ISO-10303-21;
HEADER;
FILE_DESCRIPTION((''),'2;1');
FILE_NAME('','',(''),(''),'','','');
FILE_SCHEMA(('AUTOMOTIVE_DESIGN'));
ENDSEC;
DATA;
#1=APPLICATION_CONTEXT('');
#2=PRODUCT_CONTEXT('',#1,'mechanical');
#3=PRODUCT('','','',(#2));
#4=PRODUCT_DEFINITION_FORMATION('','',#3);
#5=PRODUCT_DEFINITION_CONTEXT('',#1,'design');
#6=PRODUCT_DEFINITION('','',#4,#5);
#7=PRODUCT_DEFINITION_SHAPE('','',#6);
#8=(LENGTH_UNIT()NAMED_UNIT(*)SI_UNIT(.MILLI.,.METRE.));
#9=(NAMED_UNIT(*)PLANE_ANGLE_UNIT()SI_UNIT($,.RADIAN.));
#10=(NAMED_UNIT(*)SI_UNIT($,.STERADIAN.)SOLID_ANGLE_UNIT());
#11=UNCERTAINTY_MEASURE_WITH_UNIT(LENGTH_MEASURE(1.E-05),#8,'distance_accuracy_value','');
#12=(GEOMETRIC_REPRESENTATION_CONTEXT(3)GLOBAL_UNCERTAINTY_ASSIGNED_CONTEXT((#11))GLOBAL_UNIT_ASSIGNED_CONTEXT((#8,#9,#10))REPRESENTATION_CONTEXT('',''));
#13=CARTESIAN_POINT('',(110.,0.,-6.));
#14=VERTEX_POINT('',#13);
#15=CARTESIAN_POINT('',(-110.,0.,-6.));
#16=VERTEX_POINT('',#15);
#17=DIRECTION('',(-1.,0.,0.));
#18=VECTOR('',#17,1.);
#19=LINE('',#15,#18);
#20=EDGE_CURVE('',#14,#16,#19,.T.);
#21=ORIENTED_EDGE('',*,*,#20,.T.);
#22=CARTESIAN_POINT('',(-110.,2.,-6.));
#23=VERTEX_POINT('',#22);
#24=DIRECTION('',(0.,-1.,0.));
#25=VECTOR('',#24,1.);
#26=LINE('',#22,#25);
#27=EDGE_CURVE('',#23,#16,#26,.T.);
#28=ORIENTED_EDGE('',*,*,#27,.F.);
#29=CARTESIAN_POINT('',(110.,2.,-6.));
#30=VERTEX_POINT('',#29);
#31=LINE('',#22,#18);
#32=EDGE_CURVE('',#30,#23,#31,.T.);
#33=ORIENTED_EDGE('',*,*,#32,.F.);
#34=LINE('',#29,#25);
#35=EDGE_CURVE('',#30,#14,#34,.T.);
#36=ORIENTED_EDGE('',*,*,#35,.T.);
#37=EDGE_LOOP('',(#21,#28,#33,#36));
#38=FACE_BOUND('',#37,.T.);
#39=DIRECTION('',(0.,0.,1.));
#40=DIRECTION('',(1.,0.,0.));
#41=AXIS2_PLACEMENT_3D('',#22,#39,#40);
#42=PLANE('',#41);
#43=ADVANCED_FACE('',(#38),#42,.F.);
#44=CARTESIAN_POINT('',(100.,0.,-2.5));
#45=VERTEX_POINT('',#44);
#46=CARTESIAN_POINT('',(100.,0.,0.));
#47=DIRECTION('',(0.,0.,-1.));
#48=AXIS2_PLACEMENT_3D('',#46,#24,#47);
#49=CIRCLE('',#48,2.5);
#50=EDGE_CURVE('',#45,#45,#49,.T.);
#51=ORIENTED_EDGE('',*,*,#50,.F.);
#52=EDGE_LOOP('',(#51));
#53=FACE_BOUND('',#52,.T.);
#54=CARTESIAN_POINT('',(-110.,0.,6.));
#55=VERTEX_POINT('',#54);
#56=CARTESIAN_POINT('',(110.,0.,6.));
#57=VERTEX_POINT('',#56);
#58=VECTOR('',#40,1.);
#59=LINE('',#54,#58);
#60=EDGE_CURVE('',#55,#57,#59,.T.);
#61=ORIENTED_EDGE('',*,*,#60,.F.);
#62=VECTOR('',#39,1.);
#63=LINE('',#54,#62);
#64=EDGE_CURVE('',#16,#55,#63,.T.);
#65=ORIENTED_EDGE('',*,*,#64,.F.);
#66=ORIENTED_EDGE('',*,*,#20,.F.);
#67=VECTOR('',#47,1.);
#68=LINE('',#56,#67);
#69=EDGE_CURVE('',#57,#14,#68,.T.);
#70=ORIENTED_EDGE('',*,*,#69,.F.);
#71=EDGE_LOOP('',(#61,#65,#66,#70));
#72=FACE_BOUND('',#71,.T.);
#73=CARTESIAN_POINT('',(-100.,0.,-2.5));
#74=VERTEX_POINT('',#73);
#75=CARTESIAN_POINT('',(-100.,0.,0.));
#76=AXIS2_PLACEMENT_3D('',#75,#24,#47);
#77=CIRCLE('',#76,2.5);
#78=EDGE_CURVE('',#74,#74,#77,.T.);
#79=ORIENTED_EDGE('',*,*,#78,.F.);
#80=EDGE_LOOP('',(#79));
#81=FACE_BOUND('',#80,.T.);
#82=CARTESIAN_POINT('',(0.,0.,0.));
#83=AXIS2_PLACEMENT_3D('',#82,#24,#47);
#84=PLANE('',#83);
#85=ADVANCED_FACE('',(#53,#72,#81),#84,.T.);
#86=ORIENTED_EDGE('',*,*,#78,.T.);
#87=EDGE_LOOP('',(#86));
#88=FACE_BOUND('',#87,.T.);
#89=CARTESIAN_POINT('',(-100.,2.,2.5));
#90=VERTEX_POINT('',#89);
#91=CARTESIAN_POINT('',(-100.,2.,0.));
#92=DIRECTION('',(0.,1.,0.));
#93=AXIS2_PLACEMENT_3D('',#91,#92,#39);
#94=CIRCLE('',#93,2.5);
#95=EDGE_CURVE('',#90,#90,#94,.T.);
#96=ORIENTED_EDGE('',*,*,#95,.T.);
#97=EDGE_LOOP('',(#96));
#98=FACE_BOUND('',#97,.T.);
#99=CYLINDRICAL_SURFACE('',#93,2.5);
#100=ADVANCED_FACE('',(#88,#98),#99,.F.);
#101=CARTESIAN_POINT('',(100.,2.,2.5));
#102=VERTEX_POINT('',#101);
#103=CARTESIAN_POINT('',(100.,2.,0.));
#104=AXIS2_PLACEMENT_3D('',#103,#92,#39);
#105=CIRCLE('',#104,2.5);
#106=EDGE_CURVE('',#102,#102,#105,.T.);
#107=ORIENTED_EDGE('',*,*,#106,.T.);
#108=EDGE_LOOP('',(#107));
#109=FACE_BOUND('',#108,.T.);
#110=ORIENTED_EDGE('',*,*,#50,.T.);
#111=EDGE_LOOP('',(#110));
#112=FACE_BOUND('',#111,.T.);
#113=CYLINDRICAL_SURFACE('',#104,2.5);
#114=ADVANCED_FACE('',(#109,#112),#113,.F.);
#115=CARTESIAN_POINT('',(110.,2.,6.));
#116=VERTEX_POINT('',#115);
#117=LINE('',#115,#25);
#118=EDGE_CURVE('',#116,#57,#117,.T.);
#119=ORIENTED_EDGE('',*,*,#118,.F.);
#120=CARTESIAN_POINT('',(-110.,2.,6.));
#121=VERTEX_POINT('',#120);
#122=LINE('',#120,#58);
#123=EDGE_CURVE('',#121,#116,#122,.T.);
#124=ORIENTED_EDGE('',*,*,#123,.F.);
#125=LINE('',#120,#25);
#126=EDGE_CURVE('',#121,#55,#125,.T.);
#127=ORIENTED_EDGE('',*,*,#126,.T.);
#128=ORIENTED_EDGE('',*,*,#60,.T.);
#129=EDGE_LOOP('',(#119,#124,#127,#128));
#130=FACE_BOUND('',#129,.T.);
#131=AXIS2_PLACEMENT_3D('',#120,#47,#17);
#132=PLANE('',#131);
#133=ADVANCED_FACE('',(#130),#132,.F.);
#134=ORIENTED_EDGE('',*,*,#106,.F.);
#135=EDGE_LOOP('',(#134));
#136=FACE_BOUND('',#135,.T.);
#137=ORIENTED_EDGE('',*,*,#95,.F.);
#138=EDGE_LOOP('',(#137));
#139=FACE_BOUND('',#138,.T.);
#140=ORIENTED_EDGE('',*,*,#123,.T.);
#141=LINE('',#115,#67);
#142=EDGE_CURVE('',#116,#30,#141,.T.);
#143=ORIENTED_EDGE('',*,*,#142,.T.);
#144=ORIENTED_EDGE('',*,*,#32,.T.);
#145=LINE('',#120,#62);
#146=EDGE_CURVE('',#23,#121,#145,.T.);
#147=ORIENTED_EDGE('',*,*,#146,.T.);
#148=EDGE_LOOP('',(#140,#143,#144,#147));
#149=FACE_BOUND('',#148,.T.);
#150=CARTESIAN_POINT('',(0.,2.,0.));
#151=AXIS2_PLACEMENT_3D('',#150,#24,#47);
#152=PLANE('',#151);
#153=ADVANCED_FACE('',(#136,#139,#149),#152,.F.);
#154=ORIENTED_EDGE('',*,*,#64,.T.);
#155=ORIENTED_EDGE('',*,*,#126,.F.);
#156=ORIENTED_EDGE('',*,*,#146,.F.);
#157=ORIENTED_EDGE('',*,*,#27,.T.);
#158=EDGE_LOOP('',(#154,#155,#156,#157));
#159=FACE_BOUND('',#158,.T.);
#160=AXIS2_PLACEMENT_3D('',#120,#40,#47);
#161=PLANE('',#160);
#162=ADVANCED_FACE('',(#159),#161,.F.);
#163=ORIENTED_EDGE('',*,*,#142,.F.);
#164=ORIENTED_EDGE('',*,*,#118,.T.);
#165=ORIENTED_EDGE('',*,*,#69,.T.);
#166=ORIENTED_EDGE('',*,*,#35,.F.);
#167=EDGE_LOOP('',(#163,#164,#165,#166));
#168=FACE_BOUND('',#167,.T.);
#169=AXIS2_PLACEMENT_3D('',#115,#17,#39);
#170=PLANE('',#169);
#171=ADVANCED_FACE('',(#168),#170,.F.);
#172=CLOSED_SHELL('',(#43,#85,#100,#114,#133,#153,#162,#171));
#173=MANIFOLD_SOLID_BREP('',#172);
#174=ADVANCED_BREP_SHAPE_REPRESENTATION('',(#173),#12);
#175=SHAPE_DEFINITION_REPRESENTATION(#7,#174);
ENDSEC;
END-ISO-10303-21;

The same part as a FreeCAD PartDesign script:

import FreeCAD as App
import Part
import Sketcher
from FreeCAD import Vector


def add_polygon(sketch, points):
    """Adds a closed chain of lines whose ends are joined by coincident constraints."""
    first, n = sketch.GeometryCount, len(points)
    for a, b in zip(points, points[1:] + points[:1]):
        sketch.addGeometry(Part.LineSegment(App.Vector(*a, 0), App.Vector(*b, 0)), False)
    for i in range(n):
        sketch.addConstraint(Sketcher.Constraint("Coincident", first + i, 2, first + (i + 1) % n, 1))

doc = App.newDocument("Part")
body = doc.addObject("PartDesign::Body", "Body")

sketch1 = doc.addObject("Sketcher::SketchObject", "Sketch")
body.addObject(sketch1)
sketch1.AttachmentSupport = (doc.XZ_Plane, [""])
sketch1.MapMode = "FlatFace"
add_polygon(sketch1, [(-110, -6), (-110, 6), (110, 6), (110, -6)])
sketch1.addConstraint(Sketcher.Constraint("Vertical", 0))
sketch1.addConstraint(Sketcher.Constraint("Horizontal", 1))
sketch1.addConstraint(Sketcher.Constraint("Vertical", 2))
sketch1.addConstraint(Sketcher.Constraint("Horizontal", 3))
sketch1.addConstraint(Sketcher.Constraint("Symmetric", 0, 2, 2, 2, -1, 1))
sketch1.addConstraint(Sketcher.Constraint("DistanceX", 1, 1, 1, 2, 220.0))
sketch1.addConstraint(Sketcher.Constraint("DistanceY", 0, 1, 0, 2, 12.0))
pad1 = doc.addObject("PartDesign::Pad", "Pad")
body.addObject(pad1)
pad1.Profile = sketch1
pad1.Length = 2
pad1.Reversed = True

sketch2 = doc.addObject("Sketcher::SketchObject", "Sketch001")
body.addObject(sketch2)
sketch2.AttachmentSupport = (doc.XZ_Plane, [""])
sketch2.MapMode = "FlatFace"
sketch2.AttachmentOffset = App.Placement(Vector(0, 0, -2), App.Rotation())
sketch2.addGeometry(Part.Circle(Vector(-100, 0, 0), Vector(0, 0, 1), 2.5), False)
sketch2.addGeometry(Part.Circle(Vector(100, 0, 0), Vector(0, 0, 1), 2.5), False)
sketch2.addConstraint(Sketcher.Constraint("Equal", 0, 1))
sketch2.addConstraint(Sketcher.Constraint("Symmetric", 0, 3, 1, 3, -1, 1))
sketch2.addConstraint(Sketcher.Constraint("PointOnObject", 0, 3, -1))
sketch2.addConstraint(Sketcher.Constraint("Diameter", 0, 5.0))
sketch2.addConstraint(Sketcher.Constraint("DistanceX", 0, 3, -1, 1, 100.0))
doc.recompute()
hole = doc.addObject("PartDesign::Hole", "Hole")
body.addObject(hole)
hole.Profile = sketch2
hole.ThreadType = "None"
hole.Diameter = 5
hole.DepthType = "Dimension"
hole.Depth = 2
hole.DrillPoint = "Flat"
hole.Reversed = True

doc.recompute()
